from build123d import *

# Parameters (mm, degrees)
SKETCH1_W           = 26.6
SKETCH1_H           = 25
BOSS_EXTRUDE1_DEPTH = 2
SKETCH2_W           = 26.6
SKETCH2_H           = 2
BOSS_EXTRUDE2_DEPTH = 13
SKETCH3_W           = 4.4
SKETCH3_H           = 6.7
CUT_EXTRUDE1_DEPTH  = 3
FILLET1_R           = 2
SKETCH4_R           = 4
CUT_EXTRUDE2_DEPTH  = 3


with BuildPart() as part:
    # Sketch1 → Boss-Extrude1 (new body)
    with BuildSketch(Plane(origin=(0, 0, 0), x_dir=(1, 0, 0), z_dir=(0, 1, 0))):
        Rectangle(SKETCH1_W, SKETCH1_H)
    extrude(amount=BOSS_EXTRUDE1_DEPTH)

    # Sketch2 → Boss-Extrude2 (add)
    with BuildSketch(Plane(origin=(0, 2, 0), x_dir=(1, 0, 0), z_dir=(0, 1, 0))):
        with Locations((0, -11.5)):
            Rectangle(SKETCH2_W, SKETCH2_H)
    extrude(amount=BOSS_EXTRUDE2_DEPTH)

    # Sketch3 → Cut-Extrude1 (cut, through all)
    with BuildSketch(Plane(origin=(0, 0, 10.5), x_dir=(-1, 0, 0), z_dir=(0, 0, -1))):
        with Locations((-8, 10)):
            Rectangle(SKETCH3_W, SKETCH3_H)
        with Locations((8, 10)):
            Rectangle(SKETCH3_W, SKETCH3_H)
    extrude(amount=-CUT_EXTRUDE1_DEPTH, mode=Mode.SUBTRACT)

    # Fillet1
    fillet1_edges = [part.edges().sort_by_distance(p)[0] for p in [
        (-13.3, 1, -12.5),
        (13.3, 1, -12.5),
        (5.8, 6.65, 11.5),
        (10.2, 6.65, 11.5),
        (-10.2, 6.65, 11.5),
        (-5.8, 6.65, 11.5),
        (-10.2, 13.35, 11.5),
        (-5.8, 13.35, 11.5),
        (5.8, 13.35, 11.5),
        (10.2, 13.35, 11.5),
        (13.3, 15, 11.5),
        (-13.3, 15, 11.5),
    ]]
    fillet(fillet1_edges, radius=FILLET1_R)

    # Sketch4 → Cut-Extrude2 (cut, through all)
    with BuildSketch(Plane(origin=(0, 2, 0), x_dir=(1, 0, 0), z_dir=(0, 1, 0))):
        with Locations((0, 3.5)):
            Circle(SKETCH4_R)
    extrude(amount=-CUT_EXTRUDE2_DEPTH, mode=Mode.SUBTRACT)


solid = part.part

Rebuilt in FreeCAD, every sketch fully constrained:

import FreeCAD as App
import Part
import Sketcher

V = App.Vector
Q = App.Units.Quantity


def edges_at(feature, points):
    """Names of the edges that pass closest to the given points."""
    edges = feature.Shape.Edges
    near = lambda p: min(range(len(edges)), key=lambda i: edges[i].distToShape(Part.Vertex(*p))[0])
    return sorted({f"Edge{near(p) + 1}" for p in points})


def add_polygon(sketch, points):
    """Adds a closed chain of lines whose ends are joined by coincident constraints."""
    first, n = sketch.GeometryCount, len(points)
    for a, b in zip(points, points[1:] + points[:1]):
        sketch.addGeometry(Part.LineSegment(App.Vector(*a, 0), App.Vector(*b, 0)), False)
    for i in range(n):
        sketch.addConstraint(Sketcher.Constraint("Coincident", first + i, 2, first + (i + 1) % n, 1))

doc = App.newDocument("Part")
body = doc.addObject("PartDesign::Body", "Body")

# Sketch on XZ plane
sketch1 = body.newObject("Sketcher::SketchObject", "Sketch")
sketch1.AttachmentSupport = (doc.getObject("XZ_Plane"), [""])
sketch1.MapMode = "FlatFace"
add_polygon(sketch1, [(-13, -12), (-13, 12), (13, 12), (13, -12)])  # lines 0-3
sketch1.addConstraint(Sketcher.Constraint("Vertical", 0))
sketch1.addConstraint(Sketcher.Constraint("Horizontal", 1))
sketch1.addConstraint(Sketcher.Constraint("Vertical", 2))
sketch1.addConstraint(Sketcher.Constraint("Horizontal", 3))
sketch1.addConstraint(Sketcher.Constraint("Symmetric", 0, 2, 2, 2, -1, 1))
sketch1.addConstraint(Sketcher.Constraint("DistanceY", 0, 1, 0, 2, Q("25 mm")))
sketch1.addConstraint(Sketcher.Constraint("DistanceX", 1, 1, 1, 2, Q("26.6 mm")))
pad1 = body.newObject("PartDesign::Pad", "Pad")
pad1.Profile = sketch1
pad1.Length = 2
pad1.Reversed = True

# Sketch on XZ plane
sketch2 = body.newObject("Sketcher::SketchObject", "Sketch001")
sketch2.AttachmentSupport = (doc.getObject("XZ_Plane"), [""])
sketch2.MapMode = "FlatFace"
sketch2.AttachmentOffset = App.Placement(V(0, 0, -2), App.Rotation())
add_polygon(sketch2, [(-13.3, 10.5), (-13.3, 12.5), (13.3, 12.5), (13.3, 10.5)])  # lines 0-3
sketch2.addConstraint(Sketcher.Constraint("Vertical", 0))
sketch2.addConstraint(Sketcher.Constraint("Horizontal", 1))
sketch2.addConstraint(Sketcher.Constraint("Vertical", 2))
sketch2.addConstraint(Sketcher.Constraint("Horizontal", 3))
sketch2.addConstraint(Sketcher.Constraint("DistanceY", 0, 1, 0, 2, Q("2 mm")))
sketch2.addConstraint(Sketcher.Constraint("DistanceX", 1, 1, 1, 2, Q("26.6 mm")))
sketch2.addConstraint(Sketcher.Constraint("DistanceX", 0, 2, -1, 1, Q("13.3 mm")))
sketch2.addConstraint(Sketcher.Constraint("DistanceY", -1, 1, 0, 2, Q("12.5 mm")))
pad2 = body.newObject("PartDesign::Pad", "Pad001")
pad2.Profile = sketch2
pad2.Length = 13
pad2.Reversed = True

# Sketch on XY plane
sketch3 = body.newObject("Sketcher::SketchObject", "Sketch002")
sketch3.AttachmentSupport = (doc.getObject("XY_Plane"), [""])
sketch3.MapMode = "FlatFace"
sketch3.AttachmentOffset = App.Placement(V(0, 0, 10.5), App.Rotation())
add_polygon(sketch3, [(10.2, 13.3), (10.2, 6.7), (5.8, 6.7), (5.8, 13.3)])  # lines 0-3
add_polygon(sketch3, [(-5.8, 13.3), (-5.8, 6.7), (-10.2, 6.7), (-10.2, 13.3)])  # lines 4-7
sketch3.addConstraint(Sketcher.Constraint("Vertical", 0))
sketch3.addConstraint(Sketcher.Constraint("Horizontal", 1))
sketch3.addConstraint(Sketcher.Constraint("Vertical", 2))
sketch3.addConstraint(Sketcher.Constraint("Horizontal", 3))
sketch3.addConstraint(Sketcher.Constraint("Vertical", 4))
sketch3.addConstraint(Sketcher.Constraint("Horizontal", 5))
sketch3.addConstraint(Sketcher.Constraint("Vertical", 6))
sketch3.addConstraint(Sketcher.Constraint("Horizontal", 7))
sketch3.addConstraint(Sketcher.Constraint("Symmetric", 1, 2, 4, 2, -2))
sketch3.addConstraint(Sketcher.Constraint("Symmetric", 3, 2, 6, 2, -2))
sketch3.addConstraint(Sketcher.Constraint("DistanceX", 1, 2, 1, 1, Q("4.4 mm")))
sketch3.addConstraint(Sketcher.Constraint("DistanceY", 0, 2, 0, 1, Q("6.7 mm")))
sketch3.addConstraint(Sketcher.Constraint("DistanceX", 4, 2, 0, 2, Q("16 mm")))
sketch3.addConstraint(Sketcher.Constraint("DistanceY", -1, 1, 0, 2, Q("6.65 mm")))
pocket1 = body.newObject("PartDesign::Pocket", "Pocket")
pocket1.Profile = sketch3
pocket1.Type = "ThroughAll"
pocket1.Reversed = True
doc.recompute()

fillet = body.newObject("PartDesign::Fillet", "Fillet")
fillet.Base = (pocket1, edges_at(pocket1, [
    (-13.3, 1, -12.5),
    (13.3, 1, -12.5),
    (5.8, 6.65, 11.5),
    (10.2, 6.65, 11.5),
    (-10.2, 6.65, 11.5),
    (-5.8, 6.65, 11.5),
    (-10.2, 13.35, 11.5),
    (-5.8, 13.35, 11.5),
    (5.8, 13.35, 11.5),
    (10.2, 13.35, 11.5),
    (13.3, 15, 11.5),
    (-13.3, 15, 11.5),
]))
fillet.Radius = 2

# Sketch on XZ plane
sketch4 = body.newObject("Sketcher::SketchObject", "Sketch003")
sketch4.AttachmentSupport = (doc.getObject("XZ_Plane"), [""])
sketch4.MapMode = "FlatFace"
sketch4.AttachmentOffset = App.Placement(V(0, 0, -2), App.Rotation())
sketch4.addGeometry(Part.Circle(V(0, -3.5, 0), V(0, 0, 1), 4), False)
sketch4.addConstraint(Sketcher.Constraint("PointOnObject", 0, 3, -2))
sketch4.addConstraint(Sketcher.Constraint("Diameter", 0, Q("8 mm")))
sketch4.addConstraint(Sketcher.Constraint("DistanceY", 0, 3, -1, 1, Q("3.5 mm")))
pocket2 = body.newObject("PartDesign::Pocket", "Pocket001")
pocket2.Profile = sketch4
pocket2.Type = "ThroughAll"
pocket2.Reversed = True

doc.recompute()
